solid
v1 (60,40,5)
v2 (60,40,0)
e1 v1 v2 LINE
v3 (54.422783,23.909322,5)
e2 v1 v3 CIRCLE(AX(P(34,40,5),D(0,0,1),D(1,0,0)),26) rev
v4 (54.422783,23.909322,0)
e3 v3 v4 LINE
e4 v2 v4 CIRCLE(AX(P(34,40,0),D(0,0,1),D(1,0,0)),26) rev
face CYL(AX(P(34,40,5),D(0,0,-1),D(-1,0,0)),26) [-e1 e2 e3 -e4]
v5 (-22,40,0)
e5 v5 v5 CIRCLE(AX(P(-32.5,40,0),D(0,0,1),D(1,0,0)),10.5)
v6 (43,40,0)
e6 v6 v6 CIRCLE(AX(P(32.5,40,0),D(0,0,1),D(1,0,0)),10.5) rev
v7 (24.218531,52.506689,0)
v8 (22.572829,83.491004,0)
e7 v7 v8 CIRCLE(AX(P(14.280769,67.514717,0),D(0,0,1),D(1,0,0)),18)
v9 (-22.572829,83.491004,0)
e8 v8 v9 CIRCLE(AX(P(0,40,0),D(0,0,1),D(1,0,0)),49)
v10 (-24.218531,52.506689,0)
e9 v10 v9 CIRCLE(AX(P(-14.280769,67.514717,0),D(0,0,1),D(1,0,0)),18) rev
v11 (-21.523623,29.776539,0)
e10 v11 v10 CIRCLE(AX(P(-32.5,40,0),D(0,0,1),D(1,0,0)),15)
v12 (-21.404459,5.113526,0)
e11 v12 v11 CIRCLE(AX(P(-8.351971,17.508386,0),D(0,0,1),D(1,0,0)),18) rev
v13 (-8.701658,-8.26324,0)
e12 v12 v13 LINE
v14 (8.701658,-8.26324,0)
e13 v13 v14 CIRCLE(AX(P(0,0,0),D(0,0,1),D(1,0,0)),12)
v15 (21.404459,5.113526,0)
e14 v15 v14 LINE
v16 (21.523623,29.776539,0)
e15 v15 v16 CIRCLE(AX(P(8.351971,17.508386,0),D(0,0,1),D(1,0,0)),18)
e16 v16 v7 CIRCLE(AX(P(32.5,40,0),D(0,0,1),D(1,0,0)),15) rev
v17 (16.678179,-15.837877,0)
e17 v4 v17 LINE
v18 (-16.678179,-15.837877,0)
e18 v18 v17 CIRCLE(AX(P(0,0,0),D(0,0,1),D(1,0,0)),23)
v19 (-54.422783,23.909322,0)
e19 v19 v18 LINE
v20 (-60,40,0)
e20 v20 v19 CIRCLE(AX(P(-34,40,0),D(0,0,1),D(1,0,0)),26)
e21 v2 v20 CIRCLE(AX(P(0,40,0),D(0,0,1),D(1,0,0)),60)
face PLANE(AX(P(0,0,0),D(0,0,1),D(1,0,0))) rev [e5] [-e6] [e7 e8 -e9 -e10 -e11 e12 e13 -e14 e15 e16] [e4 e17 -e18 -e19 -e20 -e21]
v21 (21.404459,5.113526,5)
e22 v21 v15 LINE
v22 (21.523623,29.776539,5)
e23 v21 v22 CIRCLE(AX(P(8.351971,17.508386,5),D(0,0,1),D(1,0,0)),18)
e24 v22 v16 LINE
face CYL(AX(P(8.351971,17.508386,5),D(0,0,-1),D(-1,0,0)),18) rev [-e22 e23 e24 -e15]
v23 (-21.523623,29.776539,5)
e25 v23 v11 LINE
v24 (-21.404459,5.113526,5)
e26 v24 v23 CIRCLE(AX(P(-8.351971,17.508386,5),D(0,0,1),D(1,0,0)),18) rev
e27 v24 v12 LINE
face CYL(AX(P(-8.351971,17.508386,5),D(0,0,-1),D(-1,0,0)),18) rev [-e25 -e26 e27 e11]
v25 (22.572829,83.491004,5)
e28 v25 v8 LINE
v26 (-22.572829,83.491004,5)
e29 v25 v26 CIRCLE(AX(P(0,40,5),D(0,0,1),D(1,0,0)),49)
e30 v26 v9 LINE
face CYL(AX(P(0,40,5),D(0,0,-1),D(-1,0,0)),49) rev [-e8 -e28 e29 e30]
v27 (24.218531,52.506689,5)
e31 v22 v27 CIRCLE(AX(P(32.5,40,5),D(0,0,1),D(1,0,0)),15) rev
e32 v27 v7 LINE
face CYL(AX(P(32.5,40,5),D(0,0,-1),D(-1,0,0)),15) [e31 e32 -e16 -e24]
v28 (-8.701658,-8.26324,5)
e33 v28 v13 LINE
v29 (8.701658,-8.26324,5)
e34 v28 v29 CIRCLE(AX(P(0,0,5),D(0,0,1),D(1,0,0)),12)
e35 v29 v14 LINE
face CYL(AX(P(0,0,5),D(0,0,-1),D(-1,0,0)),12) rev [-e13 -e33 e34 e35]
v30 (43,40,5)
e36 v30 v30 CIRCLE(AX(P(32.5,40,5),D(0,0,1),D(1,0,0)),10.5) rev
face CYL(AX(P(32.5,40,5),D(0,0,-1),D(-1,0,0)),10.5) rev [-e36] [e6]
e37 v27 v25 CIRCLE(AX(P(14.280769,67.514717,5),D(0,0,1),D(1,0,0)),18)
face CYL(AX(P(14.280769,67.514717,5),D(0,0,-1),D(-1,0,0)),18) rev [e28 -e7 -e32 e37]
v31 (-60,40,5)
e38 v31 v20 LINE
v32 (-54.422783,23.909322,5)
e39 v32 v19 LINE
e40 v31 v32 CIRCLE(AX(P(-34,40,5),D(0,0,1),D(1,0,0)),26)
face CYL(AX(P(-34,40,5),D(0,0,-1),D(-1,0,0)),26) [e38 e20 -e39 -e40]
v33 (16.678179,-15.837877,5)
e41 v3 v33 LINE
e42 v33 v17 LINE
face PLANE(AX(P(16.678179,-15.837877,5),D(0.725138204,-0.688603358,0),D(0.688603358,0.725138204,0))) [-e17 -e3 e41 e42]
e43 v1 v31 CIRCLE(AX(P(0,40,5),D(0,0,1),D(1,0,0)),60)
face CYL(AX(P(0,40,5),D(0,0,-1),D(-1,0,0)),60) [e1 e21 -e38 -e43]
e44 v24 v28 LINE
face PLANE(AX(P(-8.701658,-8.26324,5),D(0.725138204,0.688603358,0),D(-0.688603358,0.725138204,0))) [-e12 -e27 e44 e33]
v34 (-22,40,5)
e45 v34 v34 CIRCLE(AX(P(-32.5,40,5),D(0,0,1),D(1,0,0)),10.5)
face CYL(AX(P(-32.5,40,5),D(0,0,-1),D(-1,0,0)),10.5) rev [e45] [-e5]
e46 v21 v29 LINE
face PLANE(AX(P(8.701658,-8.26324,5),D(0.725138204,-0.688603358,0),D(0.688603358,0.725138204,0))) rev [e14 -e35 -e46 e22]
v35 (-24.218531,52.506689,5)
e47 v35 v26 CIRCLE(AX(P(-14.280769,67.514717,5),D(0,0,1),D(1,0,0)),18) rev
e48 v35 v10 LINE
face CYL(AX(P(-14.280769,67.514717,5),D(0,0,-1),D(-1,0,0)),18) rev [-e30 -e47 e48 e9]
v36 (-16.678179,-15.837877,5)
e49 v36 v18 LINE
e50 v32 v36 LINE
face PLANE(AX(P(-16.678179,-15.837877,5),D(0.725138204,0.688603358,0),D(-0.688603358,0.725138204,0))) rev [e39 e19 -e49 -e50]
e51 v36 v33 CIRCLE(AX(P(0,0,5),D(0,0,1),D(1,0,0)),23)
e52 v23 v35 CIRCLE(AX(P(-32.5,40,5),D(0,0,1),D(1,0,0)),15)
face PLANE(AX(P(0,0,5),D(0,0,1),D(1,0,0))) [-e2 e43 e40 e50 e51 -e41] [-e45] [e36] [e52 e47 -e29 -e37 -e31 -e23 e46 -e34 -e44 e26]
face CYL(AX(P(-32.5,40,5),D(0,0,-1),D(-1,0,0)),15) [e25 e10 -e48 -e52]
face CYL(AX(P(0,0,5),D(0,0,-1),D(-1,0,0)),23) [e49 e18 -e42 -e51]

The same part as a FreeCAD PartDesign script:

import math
import FreeCAD as App
import Part
import Sketcher
Q = App.Units.Quantity

doc = App.newDocument("Part")
body = doc.addObject("PartDesign::Body", "Body")

# Sketch on XY plane
sketch1 = body.newObject("Sketcher::SketchObject", "Sketch")
sketch1.AttachmentSupport = (doc.getObject("XY_Plane"), [""])
sketch1.MapMode = "FlatFace"
sketch1.addGeometry([
    Part.ArcOfCircle(Part.Circle(App.Vector(-34, 40, 0), App.Vector(0, 0, 1), 26), math.radians(-180), math.radians(-142)),  # 0
    Part.LineSegment(App.Vector(-54, 24, 0), App.Vector(-17, -16, 0)),  # 1
    Part.ArcOfCircle(Part.Circle(App.Vector(0, 0, 0), App.Vector(0, 0, 1), 23), math.radians(-136), math.radians(-44)),  # 2
    Part.LineSegment(App.Vector(17, -16, 0), App.Vector(54, 24, 0)),  # 3
    Part.ArcOfCircle(Part.Circle(App.Vector(34, 40, 0), App.Vector(0, 0, 1), 26), math.radians(-38), math.radians(0)),  # 4
    Part.ArcOfCircle(Part.Circle(App.Vector(0, 40, 0), App.Vector(0, 0, 1), 60), math.radians(0), math.radians(180)),  # 5
    Part.Circle(App.Vector(-32, 40, 0), App.Vector(0, 0, 1), 10),  # 6
    Part.ArcOfCircle(Part.Circle(App.Vector(0, 0, 0), App.Vector(0, 0, 1), 12), math.radians(-136), math.radians(-44)),  # 7
    Part.LineSegment(App.Vector(-9, -8, 0), App.Vector(-21, 5, 0)),  # 8
    Part.ArcOfCircle(Part.Circle(App.Vector(-8, 18, 0), App.Vector(0, 0, 1), 18), math.radians(137), math.radians(224)),  # 9
    Part.ArcOfCircle(Part.Circle(App.Vector(-32, 40, 0), App.Vector(0, 0, 1), 15), math.radians(-43), math.radians(56)),  # 10
    Part.ArcOfCircle(Part.Circle(App.Vector(-14, 68, 0), App.Vector(0, 0, 1), 18), math.radians(117), math.radians(236)),  # 11
    Part.ArcOfCircle(Part.Circle(App.Vector(0, 40, 0), App.Vector(0, 0, 1), 49), math.radians(63), math.radians(117)),  # 12
    Part.ArcOfCircle(Part.Circle(App.Vector(14, 68, 0), App.Vector(0, 0, 1), 18), math.radians(-56), math.radians(63)),  # 13
    Part.ArcOfCircle(Part.Circle(App.Vector(32, 40, 0), App.Vector(0, 0, 1), 15), math.radians(124), math.radians(223)),  # 14
    Part.ArcOfCircle(Part.Circle(App.Vector(8, 18, 0), App.Vector(0, 0, 1), 18), math.radians(-44), math.radians(43)),  # 15
    Part.LineSegment(App.Vector(21, 5, 0), App.Vector(9, -8, 0)),  # 16
    Part.Circle(App.Vector(32, 40, 0), App.Vector(0, 0, 1), 10),  # 17
], False)
sketch1.addConstraint([
    Sketcher.Constraint("Coincident", 0, 2, 1, 1),
    Sketcher.Constraint("Tangent", 1, 2, 2, 1),
    Sketcher.Constraint("Tangent", 2, 2, 3, 1),
    Sketcher.Constraint("Coincident", 3, 2, 4, 1),
    Sketcher.Constraint("Tangent", 4, 2, 5, 1),
    Sketcher.Constraint("Tangent", 5, 2, 0, 1),
    Sketcher.Constraint("Tangent", 7, 1, 8, 1),
    Sketcher.Constraint("Tangent", 8, 2, 9, 2),
    Sketcher.Constraint("Tangent", 9, 1, 10, 1),
    Sketcher.Constraint("Tangent", 10, 2, 11, 2),
    Sketcher.Constraint("Tangent", 11, 1, 12, 2),
    Sketcher.Constraint("Tangent", 12, 1, 13, 2),
    Sketcher.Constraint("Tangent", 13, 1, 14, 1),
    Sketcher.Constraint("Tangent", 14, 2, 15, 2),
    Sketcher.Constraint("Tangent", 15, 1, 16, 1),
    Sketcher.Constraint("Tangent", 16, 2, 7, 2),
    Sketcher.Constraint("Coincident", 2, 3, -1, 1),
    Sketcher.Constraint("Coincident", 7, 3, -1, 1),
    Sketcher.Constraint("Coincident", 10, 3, 6, 3),
    Sketcher.Constraint("Coincident", 12, 3, 5, 3),
    Sketcher.Constraint("Coincident", 17, 3, 14, 3),
    Sketcher.Constraint("Equal", 0, 4),
    Sketcher.Constraint("Equal", 9, 11),
    Sketcher.Constraint("Equal", 11, 13),
    Sketcher.Constraint("Equal", 10, 14),
    Sketcher.Constraint("Equal", 13, 15),
    Sketcher.Constraint("Equal", 6, 17),
    Sketcher.Constraint("Symmetric", 0, 3, 4, 3, -2),
    Sketcher.Constraint("Symmetric", 6, 3, 14, 3, -2),
    Sketcher.Constraint("Parallel", 1, 8),
    Sketcher.Constraint("Parallel", 3, 16),
    Sketcher.Constraint("Horizontal", 4, 3, 5, 3),
    Sketcher.Constraint("Horizontal", 5, 3, 6, 3),
    Sketcher.Constraint("Horizontal", 9, 3, 15, 3),
    Sketcher.Constraint("Diameter", 6, Q("21 mm")),
    Sketcher.Constraint("Radius", 0, Q("26 mm")),
    Sketcher.Constraint("Radius", 2, Q("23 mm")),
    Sketcher.Constraint("Radius", 5, Q("60 mm")),
    Sketcher.Constraint("Radius", 7, Q("12 mm")),
    Sketcher.Constraint("Radius", 9, Q("18 mm")),
    Sketcher.Constraint("Radius", 10, Q("15 mm")),
    Sketcher.Constraint("Radius", 12, Q("49 mm")),
    Sketcher.Constraint("DistanceY", -1, 1, 0, 3, Q("40 mm")),
    Sketcher.Constraint("DistanceX", 6, 3, -1, 1, Q("32.5 mm")),
    Sketcher.Constraint("DistanceX", 11, 3, 9, 3, Q("5.928798 mm")),
])
pad1 = body.newObject("PartDesign::Pad", "Pad")
pad1.Profile = sketch1
pad1.Length = 5

doc.recompute()
